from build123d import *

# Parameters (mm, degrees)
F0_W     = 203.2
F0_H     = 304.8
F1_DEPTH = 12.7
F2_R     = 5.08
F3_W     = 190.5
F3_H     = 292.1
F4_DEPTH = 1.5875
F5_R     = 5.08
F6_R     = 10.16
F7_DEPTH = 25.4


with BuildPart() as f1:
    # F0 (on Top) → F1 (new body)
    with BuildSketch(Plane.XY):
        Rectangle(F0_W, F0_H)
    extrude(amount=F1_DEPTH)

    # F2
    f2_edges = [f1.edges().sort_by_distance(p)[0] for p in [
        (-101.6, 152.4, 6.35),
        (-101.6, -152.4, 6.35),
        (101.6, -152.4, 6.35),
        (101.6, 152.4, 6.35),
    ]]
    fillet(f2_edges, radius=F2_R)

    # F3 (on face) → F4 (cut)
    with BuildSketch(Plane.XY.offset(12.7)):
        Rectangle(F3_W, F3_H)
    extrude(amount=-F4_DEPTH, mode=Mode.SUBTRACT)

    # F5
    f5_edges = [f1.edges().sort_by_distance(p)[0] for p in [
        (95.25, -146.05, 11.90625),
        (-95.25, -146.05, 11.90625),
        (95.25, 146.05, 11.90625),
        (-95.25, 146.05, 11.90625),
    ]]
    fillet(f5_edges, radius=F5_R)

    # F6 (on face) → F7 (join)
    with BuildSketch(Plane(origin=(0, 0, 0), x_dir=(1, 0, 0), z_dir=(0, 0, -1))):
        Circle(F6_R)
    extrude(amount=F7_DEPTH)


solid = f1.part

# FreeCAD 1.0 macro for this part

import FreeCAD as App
import Part
import Sketcher

V = App.Vector
Q = App.Units.Quantity


def edges_at(feature, points):
    """Names of the edges that pass closest to the given points."""
    edges = feature.Shape.Edges
    near = lambda p: min(range(len(edges)), key=lambda i: edges[i].distToShape(Part.Vertex(*p))[0])
    return sorted({f"Edge{near(p) + 1}" for p in points})


def add_polygon(sketch, points):
    """Adds a closed chain of lines whose ends are joined by coincident constraints."""
    first, n = sketch.GeometryCount, len(points)
    for a, b in zip(points, points[1:] + points[:1]):
        sketch.addGeometry(Part.LineSegment(App.Vector(*a, 0), App.Vector(*b, 0)), False)
    for i in range(n):
        sketch.addConstraint(Sketcher.Constraint("Coincident", first + i, 2, first + (i + 1) % n, 1))

doc = App.newDocument("Part")
body = doc.addObject("PartDesign::Body", "Body")

# Sketch on XY plane
sketch1 = body.newObject("Sketcher::SketchObject", "Sketch")
sketch1.AttachmentSupport = (doc.getObject("XY_Plane"), [""])
sketch1.MapMode = "FlatFace"
add_polygon(sketch1, [(-102, 152), (-102, -152), (102, -152), (102, 152)])  # lines 0-3
sketch1.addConstraint([
    Sketcher.Constraint("Vertical", 0),
    Sketcher.Constraint("Horizontal", 1),
    Sketcher.Constraint("Vertical", 2),
    Sketcher.Constraint("Horizontal", 3),
    Sketcher.Constraint("Symmetric", 0, 2, 2, 2, -1, 1),
    Sketcher.Constraint("DistanceX", 1, 1, 1, 2, Q("8 in")),
    Sketcher.Constraint("DistanceY", 0, 2, 0, 1, Q("12 in")),
])
pad1 = body.newObject("PartDesign::Pad", "Pad")
pad1.Profile = sketch1
pad1.Length = Q("0.5 in")
doc.recompute()

fillet = body.newObject("PartDesign::Fillet", "Fillet")
fillet.Base = (pad1, edges_at(pad1, [
    (-101.6, 152.4, 6.35),
    (-101.6, -152.4, 6.35),
    (101.6, -152.4, 6.35),
    (101.6, 152.4, 6.35),
]))
fillet.Radius = Q("0.2 in")

# Sketch on XY plane
sketch2 = body.newObject("Sketcher::SketchObject", "Sketch001")
sketch2.AttachmentSupport = (doc.getObject("XY_Plane"), [""])
sketch2.MapMode = "FlatFace"
sketch2.AttachmentOffset = App.Placement(V(0, 0, 0.5 * 25.4), App.Rotation())
add_polygon(sketch2, [(-95, 146), (-95, -146), (95, -146), (95, 146)])  # lines 0-3
sketch2.addConstraint([
    Sketcher.Constraint("Vertical", 0),
    Sketcher.Constraint("Horizontal", 1),
    Sketcher.Constraint("Vertical", 2),
    Sketcher.Constraint("Horizontal", 3),
    Sketcher.Constraint("Symmetric", 0, 2, 2, 2, -1, 1),
    Sketcher.Constraint("DistanceX", 1, 1, 1, 2, Q("7.5 in")),
    Sketcher.Constraint("DistanceY", 0, 2, 0, 1, Q("11.5 in")),
])
pocket1 = body.newObject("PartDesign::Pocket", "Pocket")
pocket1.Profile = sketch2
pocket1.Length = Q("0.0625 in")
doc.recompute()

fillet2 = body.newObject("PartDesign::Fillet", "Fillet001")
fillet2.Base = (pocket1, edges_at(pocket1, [
    (95.25, -146.05, 11.906),
    (-95.25, -146.05, 11.906),
    (95.25, 146.05, 11.906),
    (-95.25, 146.05, 11.906),
]))
fillet2.Radius = Q("0.2 in")

# Sketch on XY plane
sketch3 = body.newObject("Sketcher::SketchObject", "Sketch002")
sketch3.AttachmentSupport = (doc.getObject("XY_Plane"), [""])
sketch3.MapMode = "FlatFace"
sketch3.addGeometry(Part.Circle(V(0, 0, 0), V(0, 0, 1), 10), False)
sketch3.addConstraint([
    Sketcher.Constraint("Coincident", 0, 3, -1, 1),
    Sketcher.Constraint("Diameter", 0, Q("0.8 in")),
])
pad2 = body.newObject("PartDesign::Pad", "Pad001")
pad2.Profile = sketch3
pad2.Length = Q("1 in")
pad2.Reversed = True

doc.recompute()
